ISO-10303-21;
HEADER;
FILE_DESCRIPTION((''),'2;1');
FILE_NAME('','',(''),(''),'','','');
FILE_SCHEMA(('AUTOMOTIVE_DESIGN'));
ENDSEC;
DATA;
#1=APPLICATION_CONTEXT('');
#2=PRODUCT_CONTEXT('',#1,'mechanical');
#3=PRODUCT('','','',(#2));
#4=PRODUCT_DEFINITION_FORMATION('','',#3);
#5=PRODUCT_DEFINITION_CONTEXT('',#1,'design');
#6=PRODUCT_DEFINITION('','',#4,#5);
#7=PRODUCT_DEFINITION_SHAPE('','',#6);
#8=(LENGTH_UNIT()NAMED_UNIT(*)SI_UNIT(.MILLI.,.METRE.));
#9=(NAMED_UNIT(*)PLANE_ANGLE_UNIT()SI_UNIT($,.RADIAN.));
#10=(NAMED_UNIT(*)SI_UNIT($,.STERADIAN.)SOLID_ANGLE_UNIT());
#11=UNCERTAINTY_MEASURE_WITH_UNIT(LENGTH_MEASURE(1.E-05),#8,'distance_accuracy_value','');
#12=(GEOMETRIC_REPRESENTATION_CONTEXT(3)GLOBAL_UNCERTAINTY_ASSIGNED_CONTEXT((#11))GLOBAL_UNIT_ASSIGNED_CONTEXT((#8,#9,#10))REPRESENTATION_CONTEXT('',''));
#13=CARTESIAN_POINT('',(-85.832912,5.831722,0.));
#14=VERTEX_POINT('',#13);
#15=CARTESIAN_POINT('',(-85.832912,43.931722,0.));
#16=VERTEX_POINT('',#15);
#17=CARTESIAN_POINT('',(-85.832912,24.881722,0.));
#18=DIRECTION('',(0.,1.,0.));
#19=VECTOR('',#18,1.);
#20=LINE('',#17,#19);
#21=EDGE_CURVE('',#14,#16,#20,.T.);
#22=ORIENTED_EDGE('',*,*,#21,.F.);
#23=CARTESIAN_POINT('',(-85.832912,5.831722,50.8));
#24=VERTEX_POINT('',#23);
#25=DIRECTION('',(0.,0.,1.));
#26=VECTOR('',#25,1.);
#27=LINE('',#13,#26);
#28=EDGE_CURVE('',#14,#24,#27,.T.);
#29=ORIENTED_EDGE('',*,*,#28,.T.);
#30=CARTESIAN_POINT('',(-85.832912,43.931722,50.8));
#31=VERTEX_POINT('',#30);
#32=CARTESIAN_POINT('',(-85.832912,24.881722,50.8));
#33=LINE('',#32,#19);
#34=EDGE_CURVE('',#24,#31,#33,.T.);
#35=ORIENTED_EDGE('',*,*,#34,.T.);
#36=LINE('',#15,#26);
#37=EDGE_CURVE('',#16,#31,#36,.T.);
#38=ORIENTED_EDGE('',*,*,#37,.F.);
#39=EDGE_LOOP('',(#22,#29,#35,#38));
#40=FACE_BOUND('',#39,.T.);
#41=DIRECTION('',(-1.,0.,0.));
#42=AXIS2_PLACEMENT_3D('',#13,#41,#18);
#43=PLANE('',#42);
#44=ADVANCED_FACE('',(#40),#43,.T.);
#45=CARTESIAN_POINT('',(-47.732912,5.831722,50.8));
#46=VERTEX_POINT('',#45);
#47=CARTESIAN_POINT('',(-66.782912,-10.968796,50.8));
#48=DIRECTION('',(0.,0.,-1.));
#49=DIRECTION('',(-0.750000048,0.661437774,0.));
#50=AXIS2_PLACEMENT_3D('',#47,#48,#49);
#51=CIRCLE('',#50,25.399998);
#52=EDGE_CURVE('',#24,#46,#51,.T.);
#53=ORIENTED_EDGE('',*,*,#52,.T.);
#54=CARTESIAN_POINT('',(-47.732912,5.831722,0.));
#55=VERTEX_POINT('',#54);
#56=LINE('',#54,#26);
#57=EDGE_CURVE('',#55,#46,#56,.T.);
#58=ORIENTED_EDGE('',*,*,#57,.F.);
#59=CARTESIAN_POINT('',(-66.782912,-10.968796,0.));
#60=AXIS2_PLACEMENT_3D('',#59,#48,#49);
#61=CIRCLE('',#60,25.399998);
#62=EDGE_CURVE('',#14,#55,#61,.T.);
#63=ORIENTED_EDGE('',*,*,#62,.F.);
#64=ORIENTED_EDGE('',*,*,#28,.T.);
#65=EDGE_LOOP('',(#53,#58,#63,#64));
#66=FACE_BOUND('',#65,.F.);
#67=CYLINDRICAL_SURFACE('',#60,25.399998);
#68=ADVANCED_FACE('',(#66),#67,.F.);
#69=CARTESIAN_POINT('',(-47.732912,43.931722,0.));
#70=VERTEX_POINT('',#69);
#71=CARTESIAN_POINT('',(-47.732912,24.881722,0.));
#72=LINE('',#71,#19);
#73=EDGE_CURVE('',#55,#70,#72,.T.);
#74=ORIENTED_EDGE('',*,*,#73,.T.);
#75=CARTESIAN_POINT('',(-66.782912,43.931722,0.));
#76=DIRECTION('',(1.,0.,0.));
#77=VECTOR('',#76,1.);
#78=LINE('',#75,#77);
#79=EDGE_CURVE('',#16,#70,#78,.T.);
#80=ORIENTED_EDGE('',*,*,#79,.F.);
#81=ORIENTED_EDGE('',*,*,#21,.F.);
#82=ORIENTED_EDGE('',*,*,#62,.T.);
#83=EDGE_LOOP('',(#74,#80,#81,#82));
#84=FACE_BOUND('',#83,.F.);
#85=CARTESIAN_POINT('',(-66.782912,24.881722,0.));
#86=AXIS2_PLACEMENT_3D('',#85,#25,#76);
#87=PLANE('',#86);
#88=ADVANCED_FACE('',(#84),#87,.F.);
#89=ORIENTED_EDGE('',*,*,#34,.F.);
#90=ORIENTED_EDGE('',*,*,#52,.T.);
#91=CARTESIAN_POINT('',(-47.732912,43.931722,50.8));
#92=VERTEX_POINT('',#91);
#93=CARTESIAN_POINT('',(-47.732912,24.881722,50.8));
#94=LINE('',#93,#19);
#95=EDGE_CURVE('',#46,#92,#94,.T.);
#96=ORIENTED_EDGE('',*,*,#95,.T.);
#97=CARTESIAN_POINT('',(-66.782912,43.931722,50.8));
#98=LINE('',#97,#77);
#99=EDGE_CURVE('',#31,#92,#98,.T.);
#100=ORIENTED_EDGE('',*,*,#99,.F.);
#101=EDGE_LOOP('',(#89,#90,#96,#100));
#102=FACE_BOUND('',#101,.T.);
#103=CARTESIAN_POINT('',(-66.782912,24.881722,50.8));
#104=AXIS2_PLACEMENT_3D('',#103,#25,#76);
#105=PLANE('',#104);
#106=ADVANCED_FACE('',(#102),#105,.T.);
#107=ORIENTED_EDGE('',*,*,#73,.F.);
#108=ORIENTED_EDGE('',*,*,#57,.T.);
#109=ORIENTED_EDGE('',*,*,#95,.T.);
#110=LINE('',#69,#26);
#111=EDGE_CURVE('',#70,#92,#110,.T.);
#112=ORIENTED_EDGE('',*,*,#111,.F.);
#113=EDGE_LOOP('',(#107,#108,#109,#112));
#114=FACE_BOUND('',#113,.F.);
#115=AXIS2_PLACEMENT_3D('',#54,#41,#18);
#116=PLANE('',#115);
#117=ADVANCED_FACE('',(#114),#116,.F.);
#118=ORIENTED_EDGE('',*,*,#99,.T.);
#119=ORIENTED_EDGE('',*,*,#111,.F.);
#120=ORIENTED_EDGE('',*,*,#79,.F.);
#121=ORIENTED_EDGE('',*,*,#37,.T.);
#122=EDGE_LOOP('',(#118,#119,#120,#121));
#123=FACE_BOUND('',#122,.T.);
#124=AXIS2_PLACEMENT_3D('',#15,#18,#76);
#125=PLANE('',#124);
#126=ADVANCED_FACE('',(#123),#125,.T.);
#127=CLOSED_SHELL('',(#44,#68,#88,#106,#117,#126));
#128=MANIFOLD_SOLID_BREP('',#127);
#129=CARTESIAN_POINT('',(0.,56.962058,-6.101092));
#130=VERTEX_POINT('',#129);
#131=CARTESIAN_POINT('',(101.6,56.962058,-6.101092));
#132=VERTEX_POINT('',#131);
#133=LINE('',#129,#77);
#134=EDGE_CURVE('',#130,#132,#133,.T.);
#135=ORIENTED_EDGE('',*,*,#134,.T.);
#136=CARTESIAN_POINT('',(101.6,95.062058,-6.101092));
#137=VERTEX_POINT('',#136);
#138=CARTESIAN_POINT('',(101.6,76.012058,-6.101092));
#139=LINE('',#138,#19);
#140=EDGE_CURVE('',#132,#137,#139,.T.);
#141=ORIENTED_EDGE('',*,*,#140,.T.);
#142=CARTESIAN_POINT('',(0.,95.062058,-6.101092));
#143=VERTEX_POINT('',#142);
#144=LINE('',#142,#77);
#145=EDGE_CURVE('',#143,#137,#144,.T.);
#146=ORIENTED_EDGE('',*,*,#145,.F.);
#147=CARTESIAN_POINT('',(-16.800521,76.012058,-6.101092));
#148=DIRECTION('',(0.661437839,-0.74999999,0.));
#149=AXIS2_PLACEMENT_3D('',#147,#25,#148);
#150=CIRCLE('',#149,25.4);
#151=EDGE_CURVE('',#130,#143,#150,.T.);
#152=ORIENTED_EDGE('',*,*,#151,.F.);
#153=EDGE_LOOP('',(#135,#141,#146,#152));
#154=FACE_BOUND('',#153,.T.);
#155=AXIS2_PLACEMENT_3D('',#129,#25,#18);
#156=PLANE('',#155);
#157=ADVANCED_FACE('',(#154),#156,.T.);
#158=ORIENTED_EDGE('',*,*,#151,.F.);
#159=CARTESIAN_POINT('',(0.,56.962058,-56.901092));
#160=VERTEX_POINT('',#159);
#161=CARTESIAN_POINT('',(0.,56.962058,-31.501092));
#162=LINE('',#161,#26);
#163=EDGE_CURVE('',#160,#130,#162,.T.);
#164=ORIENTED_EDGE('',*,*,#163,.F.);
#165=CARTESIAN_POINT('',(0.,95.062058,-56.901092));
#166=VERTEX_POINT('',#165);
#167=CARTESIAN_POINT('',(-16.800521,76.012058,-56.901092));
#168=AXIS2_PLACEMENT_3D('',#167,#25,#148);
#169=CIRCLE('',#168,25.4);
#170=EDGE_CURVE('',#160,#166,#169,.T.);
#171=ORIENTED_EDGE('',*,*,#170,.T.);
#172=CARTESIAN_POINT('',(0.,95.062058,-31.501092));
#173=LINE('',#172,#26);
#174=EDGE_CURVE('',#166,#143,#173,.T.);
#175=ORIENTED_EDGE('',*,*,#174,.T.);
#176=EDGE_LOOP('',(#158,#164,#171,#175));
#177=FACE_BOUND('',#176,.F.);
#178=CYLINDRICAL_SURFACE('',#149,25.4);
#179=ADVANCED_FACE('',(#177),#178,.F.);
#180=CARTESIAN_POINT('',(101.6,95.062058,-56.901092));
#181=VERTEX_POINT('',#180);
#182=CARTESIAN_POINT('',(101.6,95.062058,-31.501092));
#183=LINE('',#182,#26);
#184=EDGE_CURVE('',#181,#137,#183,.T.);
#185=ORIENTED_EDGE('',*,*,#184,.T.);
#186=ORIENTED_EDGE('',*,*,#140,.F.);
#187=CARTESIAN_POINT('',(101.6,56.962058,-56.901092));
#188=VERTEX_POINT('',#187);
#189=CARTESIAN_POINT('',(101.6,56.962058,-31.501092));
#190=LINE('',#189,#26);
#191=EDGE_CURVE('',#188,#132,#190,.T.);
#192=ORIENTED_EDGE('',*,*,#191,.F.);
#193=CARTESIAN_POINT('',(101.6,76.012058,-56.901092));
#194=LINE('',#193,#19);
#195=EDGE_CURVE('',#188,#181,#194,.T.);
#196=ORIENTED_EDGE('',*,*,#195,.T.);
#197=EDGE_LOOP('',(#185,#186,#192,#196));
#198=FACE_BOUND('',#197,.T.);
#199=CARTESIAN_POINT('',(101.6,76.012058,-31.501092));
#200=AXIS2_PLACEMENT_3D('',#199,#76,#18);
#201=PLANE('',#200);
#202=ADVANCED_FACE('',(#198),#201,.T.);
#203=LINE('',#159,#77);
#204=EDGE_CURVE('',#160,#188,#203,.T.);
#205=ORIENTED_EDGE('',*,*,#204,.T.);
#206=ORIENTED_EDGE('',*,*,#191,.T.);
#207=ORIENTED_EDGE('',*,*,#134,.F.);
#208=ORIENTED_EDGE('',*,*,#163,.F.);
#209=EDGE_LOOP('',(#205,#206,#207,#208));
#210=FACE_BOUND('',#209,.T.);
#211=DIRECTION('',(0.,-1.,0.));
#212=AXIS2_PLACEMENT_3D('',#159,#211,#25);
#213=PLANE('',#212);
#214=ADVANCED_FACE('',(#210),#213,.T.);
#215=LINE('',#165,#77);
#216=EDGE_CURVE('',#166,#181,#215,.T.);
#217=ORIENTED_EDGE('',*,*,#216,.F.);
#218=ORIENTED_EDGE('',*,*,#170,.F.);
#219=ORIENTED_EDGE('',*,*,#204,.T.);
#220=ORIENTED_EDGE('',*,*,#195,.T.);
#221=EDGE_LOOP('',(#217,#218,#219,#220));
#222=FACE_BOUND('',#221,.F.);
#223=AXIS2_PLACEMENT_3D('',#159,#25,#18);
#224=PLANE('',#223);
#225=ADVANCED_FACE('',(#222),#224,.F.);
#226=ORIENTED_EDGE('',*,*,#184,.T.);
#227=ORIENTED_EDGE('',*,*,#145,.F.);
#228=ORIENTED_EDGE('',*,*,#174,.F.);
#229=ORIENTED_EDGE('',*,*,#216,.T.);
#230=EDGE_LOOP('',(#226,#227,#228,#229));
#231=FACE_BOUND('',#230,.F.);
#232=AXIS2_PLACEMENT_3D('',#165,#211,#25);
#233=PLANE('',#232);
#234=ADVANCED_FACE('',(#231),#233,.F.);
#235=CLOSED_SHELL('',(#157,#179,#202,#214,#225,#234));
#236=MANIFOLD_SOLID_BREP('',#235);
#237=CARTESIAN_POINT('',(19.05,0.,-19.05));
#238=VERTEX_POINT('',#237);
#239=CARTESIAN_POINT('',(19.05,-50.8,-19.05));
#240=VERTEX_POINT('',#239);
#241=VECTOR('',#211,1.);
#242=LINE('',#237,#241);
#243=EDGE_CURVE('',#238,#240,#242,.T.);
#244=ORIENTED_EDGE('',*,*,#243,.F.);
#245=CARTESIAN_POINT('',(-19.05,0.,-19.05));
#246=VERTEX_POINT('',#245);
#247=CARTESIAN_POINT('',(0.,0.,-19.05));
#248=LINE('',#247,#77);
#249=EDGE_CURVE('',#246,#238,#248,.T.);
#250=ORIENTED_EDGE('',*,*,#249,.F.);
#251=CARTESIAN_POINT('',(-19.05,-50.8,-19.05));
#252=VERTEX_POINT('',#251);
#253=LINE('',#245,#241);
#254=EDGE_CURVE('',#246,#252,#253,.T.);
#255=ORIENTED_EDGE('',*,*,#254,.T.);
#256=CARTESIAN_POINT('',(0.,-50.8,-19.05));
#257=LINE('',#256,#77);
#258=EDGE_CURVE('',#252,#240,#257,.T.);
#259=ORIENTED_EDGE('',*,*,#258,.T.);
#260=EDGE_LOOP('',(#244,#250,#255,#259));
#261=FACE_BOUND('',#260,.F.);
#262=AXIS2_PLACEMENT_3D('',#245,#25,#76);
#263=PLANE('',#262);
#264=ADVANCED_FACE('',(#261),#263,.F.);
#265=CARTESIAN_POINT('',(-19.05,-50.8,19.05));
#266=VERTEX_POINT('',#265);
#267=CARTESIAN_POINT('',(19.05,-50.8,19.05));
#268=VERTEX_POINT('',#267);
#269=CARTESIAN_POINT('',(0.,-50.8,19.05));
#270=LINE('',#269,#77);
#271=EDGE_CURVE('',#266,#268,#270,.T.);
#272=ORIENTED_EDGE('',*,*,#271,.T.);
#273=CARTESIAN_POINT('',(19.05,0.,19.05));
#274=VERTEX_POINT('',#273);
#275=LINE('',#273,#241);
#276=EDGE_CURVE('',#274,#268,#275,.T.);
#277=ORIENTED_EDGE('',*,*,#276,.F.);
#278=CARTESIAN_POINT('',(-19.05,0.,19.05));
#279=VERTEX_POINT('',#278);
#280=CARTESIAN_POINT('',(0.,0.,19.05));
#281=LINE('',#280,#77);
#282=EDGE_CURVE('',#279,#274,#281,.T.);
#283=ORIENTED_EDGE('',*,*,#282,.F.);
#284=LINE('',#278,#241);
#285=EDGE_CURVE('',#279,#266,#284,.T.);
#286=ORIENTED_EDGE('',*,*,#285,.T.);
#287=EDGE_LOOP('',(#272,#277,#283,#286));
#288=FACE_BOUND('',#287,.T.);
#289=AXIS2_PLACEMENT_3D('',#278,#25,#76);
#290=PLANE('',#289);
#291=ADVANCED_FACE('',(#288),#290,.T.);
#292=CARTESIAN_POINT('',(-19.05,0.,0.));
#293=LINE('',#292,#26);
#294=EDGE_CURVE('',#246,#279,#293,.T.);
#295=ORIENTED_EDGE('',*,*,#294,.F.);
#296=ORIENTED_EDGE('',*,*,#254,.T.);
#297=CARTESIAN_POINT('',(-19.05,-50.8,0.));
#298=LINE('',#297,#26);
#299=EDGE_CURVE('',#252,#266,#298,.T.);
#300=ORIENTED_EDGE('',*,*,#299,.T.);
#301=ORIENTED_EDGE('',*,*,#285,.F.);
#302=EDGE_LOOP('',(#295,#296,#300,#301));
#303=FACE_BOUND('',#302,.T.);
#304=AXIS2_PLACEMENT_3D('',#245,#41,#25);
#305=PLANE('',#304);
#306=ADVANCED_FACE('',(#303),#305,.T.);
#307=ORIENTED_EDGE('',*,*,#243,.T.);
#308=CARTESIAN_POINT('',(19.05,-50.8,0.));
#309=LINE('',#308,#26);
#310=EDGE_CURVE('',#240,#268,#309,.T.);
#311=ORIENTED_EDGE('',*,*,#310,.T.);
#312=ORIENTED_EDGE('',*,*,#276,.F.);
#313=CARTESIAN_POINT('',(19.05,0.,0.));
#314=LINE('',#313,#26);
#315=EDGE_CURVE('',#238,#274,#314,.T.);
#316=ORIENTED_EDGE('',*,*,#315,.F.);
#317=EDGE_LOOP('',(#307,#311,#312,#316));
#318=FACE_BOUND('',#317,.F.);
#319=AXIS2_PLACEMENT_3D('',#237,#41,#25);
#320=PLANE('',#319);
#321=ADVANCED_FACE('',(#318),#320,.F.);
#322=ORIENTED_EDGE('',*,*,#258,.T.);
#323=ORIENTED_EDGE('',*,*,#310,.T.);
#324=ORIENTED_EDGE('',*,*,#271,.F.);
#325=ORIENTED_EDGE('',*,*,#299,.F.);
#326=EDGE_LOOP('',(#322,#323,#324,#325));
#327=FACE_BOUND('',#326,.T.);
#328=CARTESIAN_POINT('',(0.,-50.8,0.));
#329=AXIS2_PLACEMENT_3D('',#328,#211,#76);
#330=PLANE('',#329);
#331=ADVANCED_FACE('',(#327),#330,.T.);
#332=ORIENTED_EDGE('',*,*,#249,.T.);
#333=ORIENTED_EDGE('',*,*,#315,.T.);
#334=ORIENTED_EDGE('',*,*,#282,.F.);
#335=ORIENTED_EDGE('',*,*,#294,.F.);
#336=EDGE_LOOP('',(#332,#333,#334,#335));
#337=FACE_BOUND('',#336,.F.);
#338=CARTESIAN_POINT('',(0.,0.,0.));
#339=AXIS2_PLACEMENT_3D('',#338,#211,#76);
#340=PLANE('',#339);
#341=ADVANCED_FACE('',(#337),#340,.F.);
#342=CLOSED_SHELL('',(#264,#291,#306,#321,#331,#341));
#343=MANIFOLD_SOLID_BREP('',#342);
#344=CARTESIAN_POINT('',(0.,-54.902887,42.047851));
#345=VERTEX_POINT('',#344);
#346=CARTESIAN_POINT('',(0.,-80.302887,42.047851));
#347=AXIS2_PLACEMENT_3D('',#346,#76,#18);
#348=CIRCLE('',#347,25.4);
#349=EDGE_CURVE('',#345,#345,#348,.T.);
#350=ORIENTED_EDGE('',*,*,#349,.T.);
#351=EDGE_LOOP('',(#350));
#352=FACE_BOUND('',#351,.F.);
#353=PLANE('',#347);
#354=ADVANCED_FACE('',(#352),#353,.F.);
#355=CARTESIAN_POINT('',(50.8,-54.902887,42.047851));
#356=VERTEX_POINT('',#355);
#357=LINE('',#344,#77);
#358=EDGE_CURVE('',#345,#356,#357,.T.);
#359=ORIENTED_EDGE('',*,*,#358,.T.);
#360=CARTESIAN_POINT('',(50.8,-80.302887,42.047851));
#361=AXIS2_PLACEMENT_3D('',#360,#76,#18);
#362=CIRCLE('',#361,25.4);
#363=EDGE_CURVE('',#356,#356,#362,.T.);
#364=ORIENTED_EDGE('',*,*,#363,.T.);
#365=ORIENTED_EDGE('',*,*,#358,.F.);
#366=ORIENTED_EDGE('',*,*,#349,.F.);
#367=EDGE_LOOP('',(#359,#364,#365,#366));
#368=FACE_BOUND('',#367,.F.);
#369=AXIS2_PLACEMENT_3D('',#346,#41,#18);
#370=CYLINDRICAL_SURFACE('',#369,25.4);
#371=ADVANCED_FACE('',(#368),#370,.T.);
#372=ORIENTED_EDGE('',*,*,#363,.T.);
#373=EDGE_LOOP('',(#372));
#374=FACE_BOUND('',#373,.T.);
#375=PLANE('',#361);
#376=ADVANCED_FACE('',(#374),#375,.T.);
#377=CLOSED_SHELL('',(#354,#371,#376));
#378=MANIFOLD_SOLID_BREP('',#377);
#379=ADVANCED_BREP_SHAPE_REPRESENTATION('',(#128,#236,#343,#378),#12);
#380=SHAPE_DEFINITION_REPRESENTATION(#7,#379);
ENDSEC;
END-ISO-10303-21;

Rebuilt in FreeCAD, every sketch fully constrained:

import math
import FreeCAD as App
import Part
import Sketcher
Q = App.Units.Quantity


def add_polygon(sketch, points):
    """Adds a closed chain of lines whose ends are joined by coincident constraints."""
    first, n = sketch.GeometryCount, len(points)
    for a, b in zip(points, points[1:] + points[:1]):
        sketch.addGeometry(Part.LineSegment(App.Vector(*a, 0), App.Vector(*b, 0)), False)
    for i in range(n):
        sketch.addConstraint(Sketcher.Constraint("Coincident", first + i, 2, first + (i + 1) % n, 1))

doc = App.newDocument("Part")
params = doc.addObject("Spreadsheet::Sheet", "Params")
for row, (alias, value) in enumerate([
    ("sketch1_width", "1.5 in"),
    ("pad1_length", "2 in"),
    ("sketch2_width", "1.5 in"),
    ("pad2_length", "2 in"),
    ("sketch3_radius", "0.9999999 in"),
    ("sketch3_width", "1.5 in"),
    ("sketch4_diameter", "2 in"),
    ("pad3_length", "2 in"),
    ("sketch5_height", "2 in"),
    ("sketch5_width", "1.5 in"),
    ("pad4_length", "4 in"),
    ("sketch6_radius", "1 in"),
    ("sketch6_height", "1.5 in"),
], start=1):
    params.set(f"A{row}", alias)
    params.set(f"B{row}", "=" + value)
    params.setAlias(f"B{row}", alias)

body = doc.addObject("PartDesign::Body", "Body")

# Sketch on XZ plane
sketch1 = body.newObject("Sketcher::SketchObject", "Sketch")
sketch1.AttachmentSupport = (doc.getObject("XZ_Plane"), [""])
sketch1.MapMode = "FlatFace"
add_polygon(sketch1, [(-19, 19), (-19, -19), (19, -19), (19, 19)])  # lines 0-3
sketch1.addConstraint([
    Sketcher.Constraint("Vertical", 0),
    Sketcher.Constraint("Horizontal", 1),
    Sketcher.Constraint("Vertical", 2),
    Sketcher.Constraint("Horizontal", 3),
    Sketcher.Constraint("Symmetric", 0, 2, 2, 2, -1, 1),
    Sketcher.Constraint("Equal", 3, 0),
    Sketcher.Constraint("DistanceX", 1, 1, 1, 2, Q("1.5 in")),
])
sketch1.setExpression("Constraints[10]", "Params.sketch1_width")
pad1 = body.newObject("PartDesign::Pad", "Pad")
pad1.Profile = sketch1
pad1.setExpression("Length", "Params.pad1_length")
body2 = doc.addObject("PartDesign::Body", "Body001")

# Sketch on XY plane
sketch2 = body2.newObject("Sketcher::SketchObject", "Sketch001")
sketch2.AttachmentSupport = (doc.getObject("XY_Plane001"), [""])
sketch2.MapMode = "FlatFace"
add_polygon(sketch2, [(-86, 44), (-86, 6), (-48, 6), (-48, 44)])  # lines 0-3
sketch2.addConstraint([
    Sketcher.Constraint("Vertical", 0),
    Sketcher.Constraint("Horizontal", 1),
    Sketcher.Constraint("Vertical", 2),
    Sketcher.Constraint("Horizontal", 3),
    Sketcher.Constraint("Equal", 3, 0),
    Sketcher.Constraint("DistanceX", 1, 1, 1, 2, Q("1.5 in")),
    Sketcher.Constraint("DistanceX", 0, 2, -1, 1, Q("85.832912 mm")),
    Sketcher.Constraint("DistanceY", -1, 1, 0, 2, Q("5.831722 mm")),
])
sketch2.setExpression("Constraints[9]", "Params.sketch2_width")
pad2 = body2.newObject("PartDesign::Pad", "Pad001")
pad2.Profile = sketch2
pad2.setExpression("Length", "Params.pad2_length")

# Sketch on XY plane
sketch3 = body2.newObject("Sketcher::SketchObject", "Sketch002")
sketch3.AttachmentSupport = (doc.getObject("XY_Plane001"), [""])
sketch3.MapMode = "FlatFace"
sketch3.addGeometry([
    Part.LineSegment(App.Vector(-48, 6, 0), App.Vector(-86, 6, 0)),
    Part.ArcOfCircle(Part.Circle(App.Vector(-67, -11, 0), App.Vector(0, 0, 1), 25), math.radians(41), math.radians(139)),
], False)
sketch3.addConstraint([
    Sketcher.Constraint("Coincident", 0, 1, 1, 1),
    Sketcher.Constraint("Coincident", 1, 2, 0, 2),
    Sketcher.Constraint("Horizontal", 0),
    Sketcher.Constraint("Radius", 1, Q("0.9999999 in")),
    Sketcher.Constraint("DistanceX", 0, 2, 0, 1, Q("1.5 in")),
    Sketcher.Constraint("DistanceX", 1, 3, -1, 1, Q("66.782912 mm")),
    Sketcher.Constraint("DistanceY", 1, 3, -1, 1, Q("10.968796 mm")),
])
sketch3.setExpression("Constraints[3]", "Params.sketch3_radius")
sketch3.setExpression("Constraints[4]", "Params.sketch3_width")
pocket1 = body2.newObject("PartDesign::Pocket", "Pocket")
pocket1.Profile = sketch3
pocket1.Type = "ThroughAll"
pocket1.Reversed = True
body3 = doc.addObject("PartDesign::Body", "Body002")

# Sketch on YZ plane
sketch4 = body3.newObject("Sketcher::SketchObject", "Sketch003")
sketch4.AttachmentSupport = (doc.getObject("YZ_Plane002"), [""])
sketch4.MapMode = "FlatFace"
sketch4.addGeometry(Part.Circle(App.Vector(-80, 42, 0), App.Vector(0, 0, 1), 25), False)
sketch4.addConstraint([
    Sketcher.Constraint("Diameter", 0, Q("2 in")),
    Sketcher.Constraint("DistanceY", -1, 1, 0, 3, Q("42.047851 mm")),
    Sketcher.Constraint("DistanceX", 0, 3, -1, 1, Q("80.302887 mm")),
])
sketch4.setExpression("Constraints[0]", "Params.sketch4_diameter")
pad3 = body3.newObject("PartDesign::Pad", "Pad002")
pad3.Profile = sketch4
pad3.setExpression("Length", "Params.pad3_length")
body4 = doc.addObject("PartDesign::Body", "Body003")

# Sketch on YZ plane
sketch5 = body4.newObject("Sketcher::SketchObject", "Sketch004")
sketch5.AttachmentSupport = (doc.getObject("YZ_Plane003"), [""])
sketch5.MapMode = "FlatFace"
add_polygon(sketch5, [(57, -6), (57, -57), (95, -57), (95, -6)])  # lines 0-3
sketch5.addConstraint([
    Sketcher.Constraint("Vertical", 0),
    Sketcher.Constraint("Horizontal", 1),
    Sketcher.Constraint("Vertical", 2),
    Sketcher.Constraint("Horizontal", 3),
    Sketcher.Constraint("DistanceY", 0, 2, 0, 1, Q("2 in")),
    Sketcher.Constraint("DistanceX", 1, 1, 1, 2, Q("1.5 in")),
    Sketcher.Constraint("DistanceY", 0, 2, -1, 1, Q("56.901092 mm")),
    Sketcher.Constraint("DistanceX", -1, 1, 0, 2, Q("56.962058 mm")),
])
sketch5.setExpression("Constraints[8]", "Params.sketch5_height")
sketch5.setExpression("Constraints[9]", "Params.sketch5_width")
pad4 = body4.newObject("PartDesign::Pad", "Pad003")
pad4.Profile = sketch5
pad4.setExpression("Length", "Params.pad4_length")

# Sketch on XY plane
sketch6 = body4.newObject("Sketcher::SketchObject", "Sketch005")
sketch6.AttachmentSupport = (doc.getObject("XY_Plane003"), [""])
sketch6.MapMode = "FlatFace"
sketch6.AttachmentOffset = App.Placement(App.Vector(0, 0, -6.101092), App.Rotation())
sketch6.addGeometry([
    Part.LineSegment(App.Vector(0, 95, 0), App.Vector(0, 57, 0)),
    Part.ArcOfCircle(Part.Circle(App.Vector(-17, 76, 0), App.Vector(0, 0, 1), 25), math.radians(-49), math.radians(49)),
], False)
sketch6.addConstraint([
    Sketcher.Constraint("Coincident", 0, 1, 1, 2),
    Sketcher.Constraint("Coincident", 1, 1, 0, 2),
    Sketcher.Constraint("Vertical", 0),
    Sketcher.Constraint("PointOnObject", 0, 1, -2),
    Sketcher.Constraint("Radius", 1, Q("1 in")),
    Sketcher.Constraint("DistanceY", 0, 2, 0, 1, Q("1.5 in")),
    Sketcher.Constraint("DistanceY", -1, 1, 1, 1, Q("56.962058 mm")),
])
sketch6.setExpression("Constraints[4]", "Params.sketch6_radius")
sketch6.setExpression("Constraints[5]", "Params.sketch6_height")
pocket2 = body4.newObject("PartDesign::Pocket", "Pocket001")
pocket2.Profile = sketch6
pocket2.Type = "ThroughAll"

doc.recompute()
